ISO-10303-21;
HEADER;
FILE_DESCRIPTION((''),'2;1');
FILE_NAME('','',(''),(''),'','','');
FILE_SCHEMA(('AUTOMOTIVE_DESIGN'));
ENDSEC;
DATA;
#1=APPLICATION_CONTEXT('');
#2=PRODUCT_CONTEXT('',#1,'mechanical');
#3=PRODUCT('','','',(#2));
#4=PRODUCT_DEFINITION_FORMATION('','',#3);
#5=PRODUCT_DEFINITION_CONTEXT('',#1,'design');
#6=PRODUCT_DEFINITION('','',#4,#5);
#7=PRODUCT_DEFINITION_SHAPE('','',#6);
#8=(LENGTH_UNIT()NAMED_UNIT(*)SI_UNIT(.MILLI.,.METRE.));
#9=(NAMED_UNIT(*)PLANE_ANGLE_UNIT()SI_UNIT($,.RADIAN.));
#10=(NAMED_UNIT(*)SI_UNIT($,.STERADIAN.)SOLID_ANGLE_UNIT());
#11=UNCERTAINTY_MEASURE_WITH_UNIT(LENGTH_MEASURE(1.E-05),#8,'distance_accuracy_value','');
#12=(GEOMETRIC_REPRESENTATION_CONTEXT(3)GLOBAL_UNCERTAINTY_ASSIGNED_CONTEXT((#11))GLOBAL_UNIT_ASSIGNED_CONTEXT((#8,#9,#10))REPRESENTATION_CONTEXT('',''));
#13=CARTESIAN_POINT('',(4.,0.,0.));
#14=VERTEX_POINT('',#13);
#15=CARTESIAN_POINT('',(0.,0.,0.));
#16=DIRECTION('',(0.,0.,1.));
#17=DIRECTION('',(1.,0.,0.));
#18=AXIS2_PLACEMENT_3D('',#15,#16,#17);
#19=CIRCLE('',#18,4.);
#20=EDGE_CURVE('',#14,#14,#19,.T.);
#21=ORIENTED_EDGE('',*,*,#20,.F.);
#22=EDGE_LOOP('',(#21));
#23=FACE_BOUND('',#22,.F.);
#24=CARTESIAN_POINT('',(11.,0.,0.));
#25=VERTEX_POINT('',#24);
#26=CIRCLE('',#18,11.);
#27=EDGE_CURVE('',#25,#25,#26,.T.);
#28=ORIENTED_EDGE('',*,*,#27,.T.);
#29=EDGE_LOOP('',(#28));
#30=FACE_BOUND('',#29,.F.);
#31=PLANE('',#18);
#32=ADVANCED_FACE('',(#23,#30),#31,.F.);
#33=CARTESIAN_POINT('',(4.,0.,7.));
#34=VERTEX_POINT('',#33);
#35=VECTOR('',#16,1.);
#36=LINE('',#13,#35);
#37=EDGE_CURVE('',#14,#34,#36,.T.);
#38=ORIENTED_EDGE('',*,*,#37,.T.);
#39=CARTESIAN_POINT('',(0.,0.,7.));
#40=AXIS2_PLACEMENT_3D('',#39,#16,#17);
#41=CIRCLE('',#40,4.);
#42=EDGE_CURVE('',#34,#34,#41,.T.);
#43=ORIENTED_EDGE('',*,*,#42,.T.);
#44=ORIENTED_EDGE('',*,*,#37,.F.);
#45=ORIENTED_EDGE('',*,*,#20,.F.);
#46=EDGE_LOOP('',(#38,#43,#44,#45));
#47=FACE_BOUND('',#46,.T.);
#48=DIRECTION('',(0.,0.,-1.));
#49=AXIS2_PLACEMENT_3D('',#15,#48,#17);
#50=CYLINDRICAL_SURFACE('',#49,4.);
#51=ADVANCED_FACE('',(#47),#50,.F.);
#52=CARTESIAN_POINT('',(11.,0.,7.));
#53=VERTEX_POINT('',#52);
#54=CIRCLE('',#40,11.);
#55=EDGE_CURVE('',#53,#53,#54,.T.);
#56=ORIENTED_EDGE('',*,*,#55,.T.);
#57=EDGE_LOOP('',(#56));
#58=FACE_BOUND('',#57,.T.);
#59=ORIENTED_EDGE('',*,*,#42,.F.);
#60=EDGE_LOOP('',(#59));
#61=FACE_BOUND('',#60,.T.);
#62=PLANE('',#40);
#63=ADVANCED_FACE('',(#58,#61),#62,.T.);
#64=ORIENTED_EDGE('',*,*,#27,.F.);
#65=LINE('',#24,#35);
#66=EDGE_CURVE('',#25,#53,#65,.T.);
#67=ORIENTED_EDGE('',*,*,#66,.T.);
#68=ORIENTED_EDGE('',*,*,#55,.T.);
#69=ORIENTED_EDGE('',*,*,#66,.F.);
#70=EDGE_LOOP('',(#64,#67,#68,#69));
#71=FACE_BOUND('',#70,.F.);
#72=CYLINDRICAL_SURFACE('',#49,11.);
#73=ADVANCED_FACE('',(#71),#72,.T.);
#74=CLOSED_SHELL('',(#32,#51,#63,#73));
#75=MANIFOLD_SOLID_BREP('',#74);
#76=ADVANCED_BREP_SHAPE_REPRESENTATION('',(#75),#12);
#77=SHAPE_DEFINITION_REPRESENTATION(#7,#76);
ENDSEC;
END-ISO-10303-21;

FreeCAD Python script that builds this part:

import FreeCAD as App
import Part
import Sketcher
Q = App.Units.Quantity

doc = App.newDocument("Part")
body = doc.addObject("PartDesign::Body", "Body")

# Sketch on XY plane
sketch1 = body.newObject("Sketcher::SketchObject", "Sketch")
sketch1.AttachmentSupport = (doc.getObject("XY_Plane"), [""])
sketch1.MapMode = "FlatFace"
sketch1.addGeometry([
    Part.Circle(App.Vector(0, 0, 0), App.Vector(0, 0, 1), 11),
    Part.Circle(App.Vector(0, 0, 0), App.Vector(0, 0, 1), 4),
], False)
sketch1.addConstraint([
    Sketcher.Constraint("Coincident", 0, 3, -1, 1),
    Sketcher.Constraint("Coincident", 1, 3, -1, 1),
    Sketcher.Constraint("Diameter", 0, Q("22 mm")),
    Sketcher.Constraint("Diameter", 1, Q("8 mm")),
])
pad1 = body.newObject("PartDesign::Pad", "Pad")
pad1.Profile = sketch1
pad1.Length = 7

doc.recompute()
